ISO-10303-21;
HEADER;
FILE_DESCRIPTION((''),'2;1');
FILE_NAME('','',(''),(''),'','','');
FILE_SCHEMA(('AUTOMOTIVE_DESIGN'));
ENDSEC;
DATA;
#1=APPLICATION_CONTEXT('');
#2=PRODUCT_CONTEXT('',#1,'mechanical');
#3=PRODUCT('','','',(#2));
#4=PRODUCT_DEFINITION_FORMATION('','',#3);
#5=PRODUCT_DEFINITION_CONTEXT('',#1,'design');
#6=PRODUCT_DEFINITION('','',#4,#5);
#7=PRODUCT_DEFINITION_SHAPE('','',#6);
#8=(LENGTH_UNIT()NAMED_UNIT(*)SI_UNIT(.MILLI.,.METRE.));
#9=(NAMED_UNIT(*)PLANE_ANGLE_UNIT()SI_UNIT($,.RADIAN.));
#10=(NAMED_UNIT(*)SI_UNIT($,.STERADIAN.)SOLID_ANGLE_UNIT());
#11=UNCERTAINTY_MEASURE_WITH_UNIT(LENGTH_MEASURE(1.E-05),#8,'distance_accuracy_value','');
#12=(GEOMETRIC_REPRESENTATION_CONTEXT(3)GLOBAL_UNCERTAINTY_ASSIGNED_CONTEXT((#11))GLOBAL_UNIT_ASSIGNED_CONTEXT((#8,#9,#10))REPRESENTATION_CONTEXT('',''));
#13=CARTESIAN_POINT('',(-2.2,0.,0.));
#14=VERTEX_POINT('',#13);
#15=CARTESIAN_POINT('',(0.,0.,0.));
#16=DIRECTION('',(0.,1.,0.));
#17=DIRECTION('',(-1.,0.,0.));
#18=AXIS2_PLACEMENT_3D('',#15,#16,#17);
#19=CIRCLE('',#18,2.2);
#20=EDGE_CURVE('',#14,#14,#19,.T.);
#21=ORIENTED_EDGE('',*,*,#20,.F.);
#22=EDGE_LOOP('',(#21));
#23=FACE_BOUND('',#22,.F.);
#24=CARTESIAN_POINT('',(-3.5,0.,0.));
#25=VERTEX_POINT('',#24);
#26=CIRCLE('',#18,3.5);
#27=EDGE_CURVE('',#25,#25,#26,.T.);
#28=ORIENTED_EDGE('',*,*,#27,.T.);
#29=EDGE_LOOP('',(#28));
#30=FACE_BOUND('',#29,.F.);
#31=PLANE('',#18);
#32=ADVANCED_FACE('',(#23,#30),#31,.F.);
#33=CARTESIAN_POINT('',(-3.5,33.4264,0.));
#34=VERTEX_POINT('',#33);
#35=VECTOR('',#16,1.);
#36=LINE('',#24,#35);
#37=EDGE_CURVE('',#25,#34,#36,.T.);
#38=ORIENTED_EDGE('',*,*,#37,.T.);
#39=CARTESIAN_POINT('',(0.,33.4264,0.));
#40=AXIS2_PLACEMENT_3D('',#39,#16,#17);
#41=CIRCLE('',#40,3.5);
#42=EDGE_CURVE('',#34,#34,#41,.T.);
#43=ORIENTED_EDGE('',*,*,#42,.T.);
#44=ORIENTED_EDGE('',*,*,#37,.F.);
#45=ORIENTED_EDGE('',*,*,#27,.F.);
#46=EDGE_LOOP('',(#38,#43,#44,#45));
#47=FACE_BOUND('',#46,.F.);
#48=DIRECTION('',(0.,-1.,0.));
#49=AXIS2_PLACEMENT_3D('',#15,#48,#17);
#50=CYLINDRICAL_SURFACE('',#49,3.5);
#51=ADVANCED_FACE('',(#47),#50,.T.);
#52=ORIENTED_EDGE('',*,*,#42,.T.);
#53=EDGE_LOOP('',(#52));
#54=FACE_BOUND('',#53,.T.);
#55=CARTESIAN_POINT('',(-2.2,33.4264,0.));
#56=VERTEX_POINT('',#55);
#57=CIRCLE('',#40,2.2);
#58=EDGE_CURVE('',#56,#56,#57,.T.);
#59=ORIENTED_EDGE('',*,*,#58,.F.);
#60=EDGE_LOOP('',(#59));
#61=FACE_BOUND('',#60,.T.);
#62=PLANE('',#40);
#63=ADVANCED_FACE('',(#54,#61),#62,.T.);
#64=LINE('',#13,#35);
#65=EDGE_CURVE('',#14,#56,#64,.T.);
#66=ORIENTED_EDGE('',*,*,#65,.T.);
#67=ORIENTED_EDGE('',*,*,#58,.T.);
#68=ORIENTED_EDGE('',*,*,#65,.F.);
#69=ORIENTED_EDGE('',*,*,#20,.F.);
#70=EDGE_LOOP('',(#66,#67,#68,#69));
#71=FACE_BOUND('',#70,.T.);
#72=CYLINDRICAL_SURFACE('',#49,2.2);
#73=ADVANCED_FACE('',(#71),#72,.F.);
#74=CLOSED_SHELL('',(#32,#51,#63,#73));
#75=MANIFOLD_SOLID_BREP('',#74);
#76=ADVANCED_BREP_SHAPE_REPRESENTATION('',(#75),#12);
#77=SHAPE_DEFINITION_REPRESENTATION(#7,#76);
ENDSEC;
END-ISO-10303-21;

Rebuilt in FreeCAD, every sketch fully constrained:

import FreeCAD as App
import Part
import Sketcher

V = App.Vector
Q = App.Units.Quantity

doc = App.newDocument("Part")
params = doc.addObject("Spreadsheet::Sheet", "Params")
for row, (alias, value) in enumerate([
    ("sketch1_diameter", "7 mm"),
    ("sketch1_diameter2", "4.4 mm"),
    ("pad1_length", "33.4264 mm"),
], start=1):
    params.set(f"A{row}", alias)
    params.set(f"B{row}", "=" + value)
    params.setAlias(f"B{row}", alias)

body = doc.addObject("PartDesign::Body", "Body")

# Sketch on XZ plane
sketch1 = doc.addObject("Sketcher::SketchObject", "Sketch")
body.addObject(sketch1)
sketch1.AttachmentSupport = (doc.XZ_Plane, [""])
sketch1.MapMode = "FlatFace"
sketch1.addGeometry(Part.Circle(V(0, 0, 0), V(0, 0, 1), 3.5), False)
sketch1.addGeometry(Part.Circle(V(0, 0, 0), V(0, 0, 1), 2.2), False)
sketch1.addConstraint(Sketcher.Constraint("Coincident", 0, 3, -1, 1))
sketch1.addConstraint(Sketcher.Constraint("Coincident", 1, 3, -1, 1))
sketch1.addConstraint(Sketcher.Constraint("Diameter", 0, Q("7 mm")))
sketch1.addConstraint(Sketcher.Constraint("Diameter", 1, Q("4.4 mm")))
sketch1.setExpression("Constraints[2]", "Params.sketch1_diameter")
sketch1.setExpression("Constraints[3]", "Params.sketch1_diameter2")
pad1 = doc.addObject("PartDesign::Pad", "Pad")
body.addObject(pad1)
pad1.Profile = sketch1
pad1.setExpression("Length", "Params.pad1_length")
pad1.Reversed = True

doc.recompute()
